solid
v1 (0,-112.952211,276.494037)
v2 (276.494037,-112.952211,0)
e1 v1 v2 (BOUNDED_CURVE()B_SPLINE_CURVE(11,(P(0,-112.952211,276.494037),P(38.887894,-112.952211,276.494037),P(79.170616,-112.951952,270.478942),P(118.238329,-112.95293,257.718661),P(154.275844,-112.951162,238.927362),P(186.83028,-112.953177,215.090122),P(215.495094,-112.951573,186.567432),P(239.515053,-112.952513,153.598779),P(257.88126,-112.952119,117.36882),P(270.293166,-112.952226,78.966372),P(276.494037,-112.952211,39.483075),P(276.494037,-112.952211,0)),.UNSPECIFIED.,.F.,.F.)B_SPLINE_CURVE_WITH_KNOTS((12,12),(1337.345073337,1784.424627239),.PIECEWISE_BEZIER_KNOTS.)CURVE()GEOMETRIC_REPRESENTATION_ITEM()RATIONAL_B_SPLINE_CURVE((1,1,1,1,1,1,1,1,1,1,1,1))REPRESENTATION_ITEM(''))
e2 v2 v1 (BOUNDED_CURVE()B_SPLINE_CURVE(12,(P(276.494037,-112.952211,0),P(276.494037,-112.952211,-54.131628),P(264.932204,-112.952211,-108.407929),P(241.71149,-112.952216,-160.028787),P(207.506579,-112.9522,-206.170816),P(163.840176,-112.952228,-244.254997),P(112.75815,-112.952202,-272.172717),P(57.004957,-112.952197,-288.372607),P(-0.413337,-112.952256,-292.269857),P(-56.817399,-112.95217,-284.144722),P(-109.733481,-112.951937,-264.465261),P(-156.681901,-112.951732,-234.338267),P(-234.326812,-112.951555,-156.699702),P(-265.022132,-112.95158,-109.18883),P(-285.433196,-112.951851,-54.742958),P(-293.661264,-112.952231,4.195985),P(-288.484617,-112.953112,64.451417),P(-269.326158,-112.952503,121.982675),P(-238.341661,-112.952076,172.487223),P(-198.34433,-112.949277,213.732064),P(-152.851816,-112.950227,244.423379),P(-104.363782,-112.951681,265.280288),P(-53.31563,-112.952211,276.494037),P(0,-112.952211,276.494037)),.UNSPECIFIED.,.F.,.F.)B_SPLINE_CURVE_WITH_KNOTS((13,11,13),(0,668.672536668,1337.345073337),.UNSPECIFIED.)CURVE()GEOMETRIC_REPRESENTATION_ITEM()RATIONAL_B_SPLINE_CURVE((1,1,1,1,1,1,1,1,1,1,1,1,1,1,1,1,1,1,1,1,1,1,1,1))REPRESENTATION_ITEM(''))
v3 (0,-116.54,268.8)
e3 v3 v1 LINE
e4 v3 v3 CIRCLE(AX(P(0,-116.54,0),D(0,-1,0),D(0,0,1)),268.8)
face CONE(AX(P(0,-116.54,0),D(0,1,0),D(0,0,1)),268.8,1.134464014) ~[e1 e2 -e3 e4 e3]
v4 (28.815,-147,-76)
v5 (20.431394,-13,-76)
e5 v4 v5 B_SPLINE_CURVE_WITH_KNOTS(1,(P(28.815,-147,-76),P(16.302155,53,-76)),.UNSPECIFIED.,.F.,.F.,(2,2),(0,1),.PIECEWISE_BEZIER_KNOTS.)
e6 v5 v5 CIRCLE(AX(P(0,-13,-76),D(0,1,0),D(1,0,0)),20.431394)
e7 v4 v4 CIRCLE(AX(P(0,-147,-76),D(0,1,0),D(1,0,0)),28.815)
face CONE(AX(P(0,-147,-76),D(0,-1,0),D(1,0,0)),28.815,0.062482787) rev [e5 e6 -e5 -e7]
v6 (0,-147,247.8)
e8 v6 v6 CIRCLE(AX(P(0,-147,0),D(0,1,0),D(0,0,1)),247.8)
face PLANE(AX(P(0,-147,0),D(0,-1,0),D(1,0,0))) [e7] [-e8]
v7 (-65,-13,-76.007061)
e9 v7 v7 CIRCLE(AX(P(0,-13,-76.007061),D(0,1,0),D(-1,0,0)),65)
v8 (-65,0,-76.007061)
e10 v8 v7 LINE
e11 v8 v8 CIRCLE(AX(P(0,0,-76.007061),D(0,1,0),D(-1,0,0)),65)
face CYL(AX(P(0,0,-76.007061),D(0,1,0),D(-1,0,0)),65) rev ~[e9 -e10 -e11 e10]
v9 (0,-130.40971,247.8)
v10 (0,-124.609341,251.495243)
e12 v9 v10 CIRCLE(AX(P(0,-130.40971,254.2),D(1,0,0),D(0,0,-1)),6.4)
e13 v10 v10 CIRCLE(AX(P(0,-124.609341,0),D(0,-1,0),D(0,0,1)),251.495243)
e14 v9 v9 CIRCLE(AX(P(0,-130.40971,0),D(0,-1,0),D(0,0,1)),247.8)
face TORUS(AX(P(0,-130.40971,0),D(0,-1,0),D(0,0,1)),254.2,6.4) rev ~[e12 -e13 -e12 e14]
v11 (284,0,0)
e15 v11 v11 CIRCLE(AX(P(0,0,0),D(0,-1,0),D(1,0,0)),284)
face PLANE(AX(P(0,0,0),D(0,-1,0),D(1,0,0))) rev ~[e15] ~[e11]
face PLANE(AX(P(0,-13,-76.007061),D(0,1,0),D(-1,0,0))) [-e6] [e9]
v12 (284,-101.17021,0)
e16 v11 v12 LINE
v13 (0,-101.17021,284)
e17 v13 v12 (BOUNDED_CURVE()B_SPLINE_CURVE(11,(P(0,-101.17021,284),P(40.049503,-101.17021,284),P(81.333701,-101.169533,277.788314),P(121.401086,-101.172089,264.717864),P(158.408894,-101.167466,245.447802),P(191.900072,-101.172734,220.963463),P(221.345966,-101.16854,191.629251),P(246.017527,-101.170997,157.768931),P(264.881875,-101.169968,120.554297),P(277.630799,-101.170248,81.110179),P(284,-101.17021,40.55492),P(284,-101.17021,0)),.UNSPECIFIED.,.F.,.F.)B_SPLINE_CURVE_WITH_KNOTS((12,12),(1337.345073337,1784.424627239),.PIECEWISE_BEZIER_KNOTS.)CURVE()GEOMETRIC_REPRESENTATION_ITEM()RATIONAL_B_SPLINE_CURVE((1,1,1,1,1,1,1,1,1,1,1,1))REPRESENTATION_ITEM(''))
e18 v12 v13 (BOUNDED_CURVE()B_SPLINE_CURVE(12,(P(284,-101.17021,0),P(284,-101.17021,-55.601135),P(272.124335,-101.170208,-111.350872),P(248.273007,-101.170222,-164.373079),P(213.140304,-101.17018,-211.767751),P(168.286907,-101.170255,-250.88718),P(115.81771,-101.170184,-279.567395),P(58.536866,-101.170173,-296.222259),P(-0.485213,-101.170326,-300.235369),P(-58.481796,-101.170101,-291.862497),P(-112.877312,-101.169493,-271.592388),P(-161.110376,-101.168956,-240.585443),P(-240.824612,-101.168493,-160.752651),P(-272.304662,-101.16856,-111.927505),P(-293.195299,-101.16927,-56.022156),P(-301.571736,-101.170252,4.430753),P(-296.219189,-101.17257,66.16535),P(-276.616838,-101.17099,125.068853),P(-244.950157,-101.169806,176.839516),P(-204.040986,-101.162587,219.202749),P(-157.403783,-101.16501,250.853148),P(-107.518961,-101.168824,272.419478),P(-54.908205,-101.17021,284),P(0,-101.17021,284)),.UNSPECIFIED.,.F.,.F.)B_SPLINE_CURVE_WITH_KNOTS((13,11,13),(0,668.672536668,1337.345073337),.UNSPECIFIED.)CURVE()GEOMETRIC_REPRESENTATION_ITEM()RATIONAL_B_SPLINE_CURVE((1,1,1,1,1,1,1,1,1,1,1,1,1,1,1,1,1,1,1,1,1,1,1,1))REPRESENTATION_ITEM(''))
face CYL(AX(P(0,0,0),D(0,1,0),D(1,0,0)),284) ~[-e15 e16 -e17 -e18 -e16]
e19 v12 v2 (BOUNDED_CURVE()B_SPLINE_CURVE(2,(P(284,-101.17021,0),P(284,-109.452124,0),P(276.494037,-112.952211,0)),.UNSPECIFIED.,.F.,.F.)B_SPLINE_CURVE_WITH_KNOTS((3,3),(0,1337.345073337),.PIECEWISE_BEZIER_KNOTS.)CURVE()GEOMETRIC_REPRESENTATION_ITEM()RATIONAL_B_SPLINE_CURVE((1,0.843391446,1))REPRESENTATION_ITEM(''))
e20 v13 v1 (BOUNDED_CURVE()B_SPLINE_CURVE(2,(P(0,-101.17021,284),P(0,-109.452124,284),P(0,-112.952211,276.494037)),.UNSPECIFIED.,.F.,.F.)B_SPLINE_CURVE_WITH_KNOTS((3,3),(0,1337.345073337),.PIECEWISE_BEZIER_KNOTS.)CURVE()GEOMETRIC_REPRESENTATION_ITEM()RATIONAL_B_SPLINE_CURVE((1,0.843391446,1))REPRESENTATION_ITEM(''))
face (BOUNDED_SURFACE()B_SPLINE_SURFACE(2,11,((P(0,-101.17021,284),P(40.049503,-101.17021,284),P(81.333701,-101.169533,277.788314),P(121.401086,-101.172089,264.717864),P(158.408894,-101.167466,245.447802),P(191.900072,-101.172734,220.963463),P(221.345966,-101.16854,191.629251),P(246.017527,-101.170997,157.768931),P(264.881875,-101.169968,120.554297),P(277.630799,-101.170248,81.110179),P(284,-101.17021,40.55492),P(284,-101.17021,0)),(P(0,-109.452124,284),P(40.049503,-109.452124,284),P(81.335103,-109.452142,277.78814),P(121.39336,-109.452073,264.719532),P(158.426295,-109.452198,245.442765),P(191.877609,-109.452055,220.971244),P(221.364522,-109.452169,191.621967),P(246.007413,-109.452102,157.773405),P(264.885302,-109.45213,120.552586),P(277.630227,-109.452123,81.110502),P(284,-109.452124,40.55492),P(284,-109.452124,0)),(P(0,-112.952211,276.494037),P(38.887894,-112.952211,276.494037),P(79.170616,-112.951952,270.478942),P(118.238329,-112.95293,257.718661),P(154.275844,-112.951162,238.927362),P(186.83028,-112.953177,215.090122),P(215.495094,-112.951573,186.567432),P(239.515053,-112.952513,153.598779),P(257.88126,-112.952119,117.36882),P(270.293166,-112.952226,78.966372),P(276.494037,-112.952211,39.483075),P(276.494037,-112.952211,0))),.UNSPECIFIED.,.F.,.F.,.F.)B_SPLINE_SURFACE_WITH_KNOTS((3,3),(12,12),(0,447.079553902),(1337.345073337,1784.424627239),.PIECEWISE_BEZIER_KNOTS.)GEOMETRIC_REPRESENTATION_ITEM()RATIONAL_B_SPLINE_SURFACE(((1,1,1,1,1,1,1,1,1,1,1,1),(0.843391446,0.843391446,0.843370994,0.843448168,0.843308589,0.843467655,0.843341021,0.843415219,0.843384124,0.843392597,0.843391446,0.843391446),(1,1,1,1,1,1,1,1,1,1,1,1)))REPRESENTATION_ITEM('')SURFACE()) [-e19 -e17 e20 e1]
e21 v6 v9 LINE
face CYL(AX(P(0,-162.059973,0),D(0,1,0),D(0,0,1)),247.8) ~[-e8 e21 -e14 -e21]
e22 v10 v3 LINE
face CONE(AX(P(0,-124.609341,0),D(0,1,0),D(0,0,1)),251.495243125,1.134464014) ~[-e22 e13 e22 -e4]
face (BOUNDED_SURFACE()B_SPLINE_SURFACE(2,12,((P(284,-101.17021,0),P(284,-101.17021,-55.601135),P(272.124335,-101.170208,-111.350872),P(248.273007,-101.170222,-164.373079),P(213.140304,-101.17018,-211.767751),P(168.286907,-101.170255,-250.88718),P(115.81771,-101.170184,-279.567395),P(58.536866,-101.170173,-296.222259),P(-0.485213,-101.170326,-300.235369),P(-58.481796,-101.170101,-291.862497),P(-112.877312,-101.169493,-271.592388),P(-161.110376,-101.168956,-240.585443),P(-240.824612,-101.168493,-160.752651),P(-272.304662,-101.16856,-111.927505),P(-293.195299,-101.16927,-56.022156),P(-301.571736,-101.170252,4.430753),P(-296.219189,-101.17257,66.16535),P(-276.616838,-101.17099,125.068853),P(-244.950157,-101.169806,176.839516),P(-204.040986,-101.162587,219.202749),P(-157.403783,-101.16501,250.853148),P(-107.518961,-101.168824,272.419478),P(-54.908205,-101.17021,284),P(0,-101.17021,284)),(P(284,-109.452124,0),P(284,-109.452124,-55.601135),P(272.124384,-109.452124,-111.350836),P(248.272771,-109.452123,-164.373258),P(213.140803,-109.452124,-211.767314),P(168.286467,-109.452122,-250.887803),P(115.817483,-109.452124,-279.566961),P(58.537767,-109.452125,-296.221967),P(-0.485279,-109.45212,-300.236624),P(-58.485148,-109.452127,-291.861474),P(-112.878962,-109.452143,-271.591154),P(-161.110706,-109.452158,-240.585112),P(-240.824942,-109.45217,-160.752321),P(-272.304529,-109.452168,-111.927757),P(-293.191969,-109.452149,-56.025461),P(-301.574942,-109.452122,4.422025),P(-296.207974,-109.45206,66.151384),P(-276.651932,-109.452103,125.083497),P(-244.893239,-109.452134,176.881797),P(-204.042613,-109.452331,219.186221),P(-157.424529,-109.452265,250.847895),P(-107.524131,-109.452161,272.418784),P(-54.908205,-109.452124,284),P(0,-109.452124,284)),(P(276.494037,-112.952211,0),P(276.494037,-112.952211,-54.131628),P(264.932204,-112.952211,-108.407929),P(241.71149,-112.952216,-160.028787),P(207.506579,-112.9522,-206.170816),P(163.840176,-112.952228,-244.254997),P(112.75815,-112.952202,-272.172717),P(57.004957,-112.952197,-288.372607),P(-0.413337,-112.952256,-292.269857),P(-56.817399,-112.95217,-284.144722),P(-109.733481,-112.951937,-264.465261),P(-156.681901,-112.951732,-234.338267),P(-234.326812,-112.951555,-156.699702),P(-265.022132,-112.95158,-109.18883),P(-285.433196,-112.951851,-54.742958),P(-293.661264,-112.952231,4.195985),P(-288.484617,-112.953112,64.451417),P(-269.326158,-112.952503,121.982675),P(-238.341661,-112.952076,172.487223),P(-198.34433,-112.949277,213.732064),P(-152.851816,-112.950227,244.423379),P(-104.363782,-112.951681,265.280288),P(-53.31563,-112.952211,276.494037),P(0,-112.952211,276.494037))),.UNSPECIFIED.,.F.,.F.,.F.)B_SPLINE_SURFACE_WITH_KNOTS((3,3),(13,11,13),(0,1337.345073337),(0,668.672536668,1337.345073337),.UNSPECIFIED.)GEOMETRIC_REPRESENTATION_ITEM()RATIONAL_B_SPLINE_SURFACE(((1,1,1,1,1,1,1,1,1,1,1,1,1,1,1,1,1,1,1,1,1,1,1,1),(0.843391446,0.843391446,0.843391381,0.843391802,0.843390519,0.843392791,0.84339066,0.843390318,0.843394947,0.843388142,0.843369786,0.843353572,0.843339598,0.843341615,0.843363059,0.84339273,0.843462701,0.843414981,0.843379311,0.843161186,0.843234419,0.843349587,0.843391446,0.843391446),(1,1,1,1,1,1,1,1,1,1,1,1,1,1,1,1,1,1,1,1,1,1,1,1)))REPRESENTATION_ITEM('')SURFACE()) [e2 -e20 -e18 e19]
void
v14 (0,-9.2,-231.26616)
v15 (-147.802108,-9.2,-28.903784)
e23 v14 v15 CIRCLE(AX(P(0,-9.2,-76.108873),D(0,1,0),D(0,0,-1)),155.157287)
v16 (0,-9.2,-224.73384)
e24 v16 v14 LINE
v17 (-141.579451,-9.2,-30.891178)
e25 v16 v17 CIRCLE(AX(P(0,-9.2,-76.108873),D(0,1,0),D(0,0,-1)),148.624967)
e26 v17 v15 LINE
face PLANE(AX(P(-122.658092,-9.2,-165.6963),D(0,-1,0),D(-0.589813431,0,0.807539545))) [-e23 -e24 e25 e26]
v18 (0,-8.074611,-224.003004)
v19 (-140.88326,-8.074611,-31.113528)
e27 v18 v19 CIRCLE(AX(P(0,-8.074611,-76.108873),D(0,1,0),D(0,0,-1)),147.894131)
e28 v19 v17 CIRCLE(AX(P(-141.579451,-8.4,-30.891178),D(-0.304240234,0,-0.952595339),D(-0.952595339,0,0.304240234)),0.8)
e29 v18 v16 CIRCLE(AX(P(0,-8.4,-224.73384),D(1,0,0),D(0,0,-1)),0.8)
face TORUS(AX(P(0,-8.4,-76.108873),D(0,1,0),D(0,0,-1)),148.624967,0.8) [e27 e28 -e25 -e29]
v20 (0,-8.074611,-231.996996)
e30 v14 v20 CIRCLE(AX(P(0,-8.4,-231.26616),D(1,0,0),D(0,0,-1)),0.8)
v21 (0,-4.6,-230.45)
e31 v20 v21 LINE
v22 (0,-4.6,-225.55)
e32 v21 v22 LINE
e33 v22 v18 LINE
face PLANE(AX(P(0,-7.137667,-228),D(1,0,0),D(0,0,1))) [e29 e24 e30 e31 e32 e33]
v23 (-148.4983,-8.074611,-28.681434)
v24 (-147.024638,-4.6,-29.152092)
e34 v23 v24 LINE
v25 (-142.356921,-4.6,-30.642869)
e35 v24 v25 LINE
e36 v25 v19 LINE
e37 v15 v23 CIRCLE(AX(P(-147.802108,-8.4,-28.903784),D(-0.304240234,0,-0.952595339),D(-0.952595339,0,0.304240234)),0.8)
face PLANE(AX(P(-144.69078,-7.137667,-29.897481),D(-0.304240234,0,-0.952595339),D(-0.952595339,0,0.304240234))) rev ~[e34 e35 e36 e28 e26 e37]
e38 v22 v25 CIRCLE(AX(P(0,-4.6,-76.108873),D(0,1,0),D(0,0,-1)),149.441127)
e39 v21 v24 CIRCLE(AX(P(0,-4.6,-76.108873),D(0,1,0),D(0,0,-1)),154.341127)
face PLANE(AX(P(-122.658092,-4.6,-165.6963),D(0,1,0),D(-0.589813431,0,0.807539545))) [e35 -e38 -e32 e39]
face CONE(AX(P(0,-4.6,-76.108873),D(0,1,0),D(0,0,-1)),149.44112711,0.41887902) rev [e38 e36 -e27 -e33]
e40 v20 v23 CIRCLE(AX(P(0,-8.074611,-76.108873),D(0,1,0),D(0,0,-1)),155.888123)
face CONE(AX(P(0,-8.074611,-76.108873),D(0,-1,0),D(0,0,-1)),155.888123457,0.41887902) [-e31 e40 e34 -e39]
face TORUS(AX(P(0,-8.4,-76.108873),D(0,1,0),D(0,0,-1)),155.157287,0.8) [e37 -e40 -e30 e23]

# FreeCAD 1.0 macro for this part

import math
import FreeCAD as App
import Part
import Sketcher
from FreeCAD import Vector
Q = App.Units.Quantity


def edges_at(feature, points):
    """Names of the edges that pass closest to the given points."""
    edges = feature.Shape.Edges
    near = lambda p: min(range(len(edges)), key=lambda i: edges[i].distToShape(Part.Vertex(*p))[0])
    return sorted({f"Edge{near(p) + 1}" for p in points})

doc = App.newDocument("Part")
body = doc.addObject("PartDesign::Body", "Body")

# Sketch on XZ plane
sketch1 = body.newObject("Sketcher::SketchObject", "Sketch")
sketch1.AttachmentSupport = (doc.getObject("XZ_Plane"), [""])
sketch1.MapMode = "FlatFace"
sketch1.addGeometry(Part.Circle(Vector(0, 0, 0), Vector(0, 0, 1), 284), False)
sketch1.addConstraint([
    Sketcher.Constraint("Coincident", 0, 3, -1, 1),
    Sketcher.Constraint("Diameter", 0, Q("568 mm")),
])
pad1 = body.newObject("PartDesign::Pad", "Pad")
pad1.Profile = sketch1
pad1.Length = 147

# Sketch on XZ plane
sketch2 = body.newObject("Sketcher::SketchObject", "Sketch001")
sketch2.AttachmentSupport = (doc.getObject("XZ_Plane"), [""])
sketch2.MapMode = "FlatFace"
sketch2.AttachmentOffset = App.Placement(Vector(0, 0, 147), App.Rotation())
sketch2.addGeometry(Part.Circle(Vector(0, -76, 0), Vector(0, 0, 1), 20), False)
sketch2.addConstraint([
    Sketcher.Constraint("PointOnObject", 0, 3, -2),
    Sketcher.Constraint("Diameter", 0, Q("40 mm")),
    Sketcher.Constraint("DistanceY", 0, 3, -1, 1, Q("76 mm")),
])
doc.recompute()
hole = body.newObject("PartDesign::Hole", "Hole")
hole.Profile = sketch2
hole.ThreadType = "None"
hole.Diameter = 40
hole.DepthType = "ThroughAll"

# Sketch on XZ plane
sketch3 = body.newObject("Sketcher::SketchObject", "Sketch002")
sketch3.AttachmentSupport = (doc.getObject("XZ_Plane"), [""])
sketch3.MapMode = "FlatFace"
sketch3.AttachmentOffset = App.Placement(Vector(0, 0, 147), App.Rotation())
sketch3.addGeometry(Part.Circle(Vector(0, -76, 0), Vector(0, 0, 1), 28.815), False)
sketch3.addConstraint([
    Sketcher.Constraint("PointOnObject", 0, 3, -2),
    Sketcher.Constraint("Diameter", 0, Q("57.63 mm")),
    Sketcher.Constraint("DistanceY", 0, 3, -1, 1, Q("76 mm")),
])
pocket1 = body.newObject("PartDesign::Pocket", "Pocket")
pocket1.Profile = sketch3
pocket1.Length = 200
pocket1.TaperAngle = -3.58

# Sketch on XZ plane
sketch4 = body.newObject("Sketcher::SketchObject", "Sketch003")
sketch4.AttachmentSupport = (doc.getObject("XZ_Plane"), [""])
sketch4.MapMode = "FlatFace"
sketch4.addGeometry(Part.Circle(Vector(0, -76.007061, 0), Vector(0, 0, 1), 65), False)
sketch4.addConstraint([
    Sketcher.Constraint("PointOnObject", 0, 3, -2),
    Sketcher.Constraint("Diameter", 0, Q("130 mm")),
    Sketcher.Constraint("DistanceY", 0, 3, -1, 1, Q("76.007061 mm")),
])
pocket2 = body.newObject("PartDesign::Pocket", "Pocket001")
pocket2.Profile = sketch4
pocket2.Length = 13
pocket2.Reversed = True

# Sketch on YZ plane
sketch5 = body.newObject("Sketcher::SketchObject", "Sketch004")
sketch5.AttachmentSupport = (doc.getObject("YZ_Plane"), [""])
sketch5.MapMode = "FlatFace"
sketch5.addGeometry([
    Part.LineSegment(Vector(-116.54, 268.8, 0), Vector(-102.991213, 297.855467, 0)),  # 0
    Part.LineSegment(Vector(-102.991213, 297.855467, 0), Vector(-166.741133, 297.855467, 0)),  # 1
    Part.LineSegment(Vector(-166.741133, 297.855467, 0), Vector(-150.456026, 257.221699, 0)),  # 2
    Part.LineSegment(Vector(-150.456026, 257.221699, 0), Vector(-162.059973, 247.8, 0)),  # 3
    Part.LineSegment(Vector(-162.059973, 247.8, 0), Vector(-130.40971, 247.8, 0)),  # 4
    Part.ArcOfCircle(Part.Circle(Vector(-130.40971, 254.2, 0), Vector(0, 0, 1), 6.4), math.radians(-90), math.radians(-25)),  # 5
    Part.LineSegment(Vector(-124.609341, 251.495243, 0), Vector(-116.54, 268.8, 0)),  # 6
], False)
sketch5.addConstraint([
    Sketcher.Constraint("Coincident", 0, 2, 1, 1),
    Sketcher.Constraint("Coincident", 1, 2, 2, 1),
    Sketcher.Constraint("Coincident", 2, 2, 3, 1),
    Sketcher.Constraint("Coincident", 3, 2, 4, 1),
    Sketcher.Constraint("Tangent", 4, 2, 5, 1),
    Sketcher.Constraint("Tangent", 5, 2, 6, 1),
    Sketcher.Constraint("Coincident", 6, 2, 0, 1),
    Sketcher.Constraint("Horizontal", 1),
    Sketcher.Constraint("Horizontal", 4),
    Sketcher.Constraint("Parallel", 0, 6),
    Sketcher.Constraint("Radius", 5, Q("6.4 mm")),
    Sketcher.Constraint("Angle", 0, Q("65 deg")),
    Sketcher.Constraint("DistanceY", 4, 2, 6, 2, Q("21 mm")),
    Sketcher.Constraint("DistanceY", -1, 1, 5, 3, Q("254.2 mm")),
    Sketcher.Constraint("DistanceX", 6, 2, -1, 1, Q("116.54 mm")),
    Sketcher.Constraint("DistanceX", 1, 2, 1, 1, Q("63.749919 mm")),
    Sketcher.Constraint("DistanceY", -1, 1, 2, 2, Q("257.221699 mm")),
    Sketcher.Constraint("Distance", 0, Q("32.05916 mm")),
    Sketcher.Constraint("Distance", 3, Q("14.94724 mm")),
    Sketcher.Constraint("DistanceX", 4, 1, 4, 2, Q("31.650262 mm")),
])
groove = body.newObject("PartDesign::Groove", "Groove")
groove.Profile = sketch5
groove.ReferenceAxis = (sketch5, ["H_Axis"])
groove.Angle = 360
doc.recompute()

fillet = body.newObject("PartDesign::Fillet", "Fillet")
fillet.Base = (groove, edges_at(groove, [(-200.818, -109.452, -200.818), (200.818, -109.452, 200.818)]))
fillet.Radius = 13

# Sketch on YZ plane
sketch6 = body.newObject("Sketcher::SketchObject", "Sketch005")
sketch6.AttachmentSupport = (doc.getObject("YZ_Plane"), [""])
sketch6.MapMode = "FlatFace"
sketch6.addGeometry([
    Part.LineSegment(Vector(-4.6, -230.45, 0), Vector(-4.6, -225.55, 0)),  # 0
    Part.LineSegment(Vector(-4.6, -225.55, 0), Vector(-8.074611, -224.003004, 0)),  # 1
    Part.ArcOfCircle(Part.Circle(Vector(-8.4, -224.73384, 0), Vector(0, 0, 1), 0.8), math.radians(66), math.radians(180)),  # 2
    Part.LineSegment(Vector(-9.2, -224.73384, 0), Vector(-9.2, -231.26616, 0)),  # 3
    Part.ArcOfCircle(Part.Circle(Vector(-8.4, -231.26616, 0), Vector(0, 0, 1), 0.8), math.radians(180), math.radians(294)),  # 4
    Part.LineSegment(Vector(-8.074611, -231.996996, 0), Vector(-4.6, -230.45, 0)),  # 5
], False)
sketch6.addConstraint([
    Sketcher.Constraint("Coincident", 0, 2, 1, 1),
    Sketcher.Constraint("Tangent", 1, 2, 2, 1),
    Sketcher.Constraint("Tangent", 2, 2, 3, 1),
    Sketcher.Constraint("Tangent", 3, 2, 4, 1),
    Sketcher.Constraint("Tangent", 4, 2, 5, 1),
    Sketcher.Constraint("Coincident", 5, 2, 0, 1),
    Sketcher.Constraint("Vertical", 0),
    Sketcher.Constraint("Vertical", 3),
    Sketcher.Constraint("Equal", 2, 4),
    Sketcher.Constraint("Vertical", 1, 2, 4, 2),
    Sketcher.Constraint("Radius", 2, Q("0.8 mm")),
    Sketcher.Constraint("Angle", 1, Q("156 deg")),
    Sketcher.Constraint("DistanceY", 0, 1, 0, 2, Q("4.9 mm")),
    Sketcher.Constraint("DistanceX", 2, 3, -1, 1, Q("8.4 mm")),
    Sketcher.Constraint("DistanceX", 0, 2, -1, 1, Q("4.6 mm")),
    Sketcher.Constraint("DistanceY", 0, 2, -1, 1, Q("225.55 mm")),
])

# Sketch on XZ plane
sketch7 = body.newObject("Sketcher::SketchObject", "Sketch006")
sketch7.AttachmentSupport = (doc.getObject("XZ_Plane"), [""])
sketch7.MapMode = "FlatFace"
sketch7.addGeometry(Part.ArcOfCircle(Part.Circle(Vector(0, -76.108873, 0), Vector(0, 0, 1), 152), math.radians(162.28754), math.radians(270)), False)
sketch7.addConstraint([
    Sketcher.Constraint("PointOnObject", 0, 3, -2),
    Sketcher.Constraint("PointOnObject", 0, 2, -2),
    Sketcher.Constraint("Radius", 0, Q("152 mm")),
    Sketcher.Constraint("DistanceX", 0, 1, -1, 1, Q("144.794492 mm")),
    Sketcher.Constraint("DistanceY", 0, 3, -1, 1, Q("76.108873 mm")),
])
doc.recompute()

subtractivepipe = body.newObject("PartDesign::SubtractivePipe", "SubtractivePipe")
subtractivepipe.Profile = sketch6
subtractivepipe.Spine = (sketch7, ["Edge1"])

doc.recompute()
